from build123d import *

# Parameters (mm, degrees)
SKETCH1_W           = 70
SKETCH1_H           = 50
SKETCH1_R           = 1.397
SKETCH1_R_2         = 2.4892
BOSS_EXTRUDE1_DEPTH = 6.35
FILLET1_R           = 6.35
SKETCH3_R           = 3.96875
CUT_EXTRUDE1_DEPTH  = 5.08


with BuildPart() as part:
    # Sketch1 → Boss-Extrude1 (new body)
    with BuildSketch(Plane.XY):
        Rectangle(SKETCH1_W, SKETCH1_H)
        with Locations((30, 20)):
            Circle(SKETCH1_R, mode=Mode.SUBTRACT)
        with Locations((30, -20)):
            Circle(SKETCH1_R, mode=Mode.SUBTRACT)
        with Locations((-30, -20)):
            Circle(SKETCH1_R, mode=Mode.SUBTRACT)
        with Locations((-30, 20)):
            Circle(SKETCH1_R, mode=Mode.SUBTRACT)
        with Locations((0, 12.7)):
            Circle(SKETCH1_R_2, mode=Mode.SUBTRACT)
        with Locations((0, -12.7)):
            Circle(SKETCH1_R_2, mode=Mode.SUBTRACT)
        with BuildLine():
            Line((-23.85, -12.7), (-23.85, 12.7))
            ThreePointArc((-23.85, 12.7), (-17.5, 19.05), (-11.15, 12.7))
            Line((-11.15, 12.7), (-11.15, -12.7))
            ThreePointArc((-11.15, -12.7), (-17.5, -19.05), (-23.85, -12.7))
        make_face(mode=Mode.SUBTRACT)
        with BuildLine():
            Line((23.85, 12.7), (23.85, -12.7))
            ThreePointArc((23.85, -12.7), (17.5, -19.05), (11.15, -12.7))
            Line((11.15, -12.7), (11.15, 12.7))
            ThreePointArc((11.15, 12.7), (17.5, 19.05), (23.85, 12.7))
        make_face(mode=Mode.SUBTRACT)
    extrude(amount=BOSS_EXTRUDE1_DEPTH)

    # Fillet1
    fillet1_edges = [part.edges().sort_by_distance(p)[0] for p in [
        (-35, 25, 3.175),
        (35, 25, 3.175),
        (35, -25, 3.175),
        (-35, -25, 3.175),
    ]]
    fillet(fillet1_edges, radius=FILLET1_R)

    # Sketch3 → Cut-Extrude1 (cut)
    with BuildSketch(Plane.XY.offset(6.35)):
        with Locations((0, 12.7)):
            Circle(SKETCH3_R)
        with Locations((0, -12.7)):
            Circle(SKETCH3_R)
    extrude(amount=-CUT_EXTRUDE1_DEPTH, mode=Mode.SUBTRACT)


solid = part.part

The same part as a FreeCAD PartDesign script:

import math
import FreeCAD as App
import Part
import Sketcher
from FreeCAD import Vector
Q = App.Units.Quantity


def edges_at(feature, points):
    """Names of the edges that pass closest to the given points."""
    edges = feature.Shape.Edges
    near = lambda p: min(range(len(edges)), key=lambda i: edges[i].distToShape(Part.Vertex(*p))[0])
    return sorted({f"Edge{near(p) + 1}" for p in points})

doc = App.newDocument("Part")
body = doc.addObject("PartDesign::Body", "Body")

# Sketch on XY plane
sketch1 = body.newObject("Sketcher::SketchObject", "Sketch")
sketch1.AttachmentSupport = (doc.getObject("XY_Plane"), [""])
sketch1.MapMode = "FlatFace"
sketch1.addGeometry(Part.LineSegment(Vector(-35, 25, 0), Vector(-35, -25, 0)), False)
sketch1.addGeometry(Part.LineSegment(Vector(-35, -25, 0), Vector(35, -25, 0)), False)
sketch1.addGeometry(Part.LineSegment(Vector(35, -25, 0), Vector(35, 25, 0)), False)
sketch1.addGeometry(Part.LineSegment(Vector(35, 25, 0), Vector(-35, 25, 0)), False)
sketch1.addGeometry(Part.Circle(Vector(-30, -20, 0), Vector(0, 0, 1), 1.4), False)
sketch1.addGeometry(Part.Circle(Vector(0, -12.7, 0), Vector(0, 0, 1), 2.5), False)
sketch1.addGeometry(Part.Circle(Vector(30, -20, 0), Vector(0, 0, 1), 1.4), False)
sketch1.addGeometry(Part.ArcOfCircle(Part.Circle(Vector(-17.5, -12.7, 0), Vector(0, 0, 1), 6.3), math.radians(180), math.radians(360)), False)
sketch1.addGeometry(Part.LineSegment(Vector(-23.9, -12.7, 0), Vector(-23.9, 12.7, 0)), False)
sketch1.addGeometry(Part.ArcOfCircle(Part.Circle(Vector(-17.5, 12.7, 0), Vector(0, 0, 1), 6.3), math.radians(0), math.radians(180)), False)
sketch1.addGeometry(Part.LineSegment(Vector(-11.2, 12.7, 0), Vector(-11.2, -12.7, 0)), False)
sketch1.addGeometry(Part.Circle(Vector(-30, 20, 0), Vector(0, 0, 1), 1.4), False)
sketch1.addGeometry(Part.Circle(Vector(0, 12.7, 0), Vector(0, 0, 1), 2.5), False)
sketch1.addGeometry(Part.ArcOfCircle(Part.Circle(Vector(17.5, 12.7, 0), Vector(0, 0, 1), 6.3), math.radians(0), math.radians(180)), False)
sketch1.addGeometry(Part.LineSegment(Vector(23.9, 12.7, 0), Vector(23.9, -12.7, 0)), False)
sketch1.addGeometry(Part.ArcOfCircle(Part.Circle(Vector(17.5, -12.7, 0), Vector(0, 0, 1), 6.3), math.radians(180), math.radians(360)), False)
sketch1.addGeometry(Part.LineSegment(Vector(11.2, -12.7, 0), Vector(11.2, 12.7, 0)), False)
sketch1.addGeometry(Part.Circle(Vector(30, 20, 0), Vector(0, 0, 1), 1.4), False)
sketch1.addConstraint(Sketcher.Constraint("Coincident", 0, 2, 1, 1))
sketch1.addConstraint(Sketcher.Constraint("Coincident", 1, 2, 2, 1))
sketch1.addConstraint(Sketcher.Constraint("Coincident", 2, 2, 3, 1))
sketch1.addConstraint(Sketcher.Constraint("Coincident", 3, 2, 0, 1))
sketch1.addConstraint(Sketcher.Constraint("Tangent", 7, 1, 8, 1))
sketch1.addConstraint(Sketcher.Constraint("Tangent", 8, 2, 9, 2))
sketch1.addConstraint(Sketcher.Constraint("Tangent", 9, 1, 10, 1))
sketch1.addConstraint(Sketcher.Constraint("Tangent", 10, 2, 7, 2))
sketch1.addConstraint(Sketcher.Constraint("Tangent", 13, 1, 14, 1))
sketch1.addConstraint(Sketcher.Constraint("Tangent", 14, 2, 15, 2))
sketch1.addConstraint(Sketcher.Constraint("Tangent", 15, 1, 16, 1))
sketch1.addConstraint(Sketcher.Constraint("Tangent", 16, 2, 13, 2))
sketch1.addConstraint(Sketcher.Constraint("Vertical", 0))
sketch1.addConstraint(Sketcher.Constraint("Horizontal", 1))
sketch1.addConstraint(Sketcher.Constraint("Vertical", 2))
sketch1.addConstraint(Sketcher.Constraint("Horizontal", 3))
sketch1.addConstraint(Sketcher.Constraint("Vertical", 8))
sketch1.addConstraint(Sketcher.Constraint("Vertical", 10))
sketch1.addConstraint(Sketcher.Constraint("Vertical", 14))
sketch1.addConstraint(Sketcher.Constraint("Vertical", 16))
sketch1.addConstraint(Sketcher.Constraint("Equal", 4, 6))
sketch1.addConstraint(Sketcher.Constraint("Equal", 6, 11))
sketch1.addConstraint(Sketcher.Constraint("Equal", 5, 12))
sketch1.addConstraint(Sketcher.Constraint("Equal", 9, 13))
sketch1.addConstraint(Sketcher.Constraint("Equal", 11, 17))
sketch1.addConstraint(Sketcher.Constraint("Symmetric", 6, 3, 11, 3, -1, 1))
sketch1.addConstraint(Sketcher.Constraint("Symmetric", 5, 3, 12, 3, -1, 1))
sketch1.addConstraint(Sketcher.Constraint("Symmetric", 7, 3, 13, 3, -1, 1))
sketch1.addConstraint(Sketcher.Constraint("Symmetric", 4, 3, 17, 3, -1, 1))
sketch1.addConstraint(Sketcher.Constraint("Symmetric", 0, 2, 2, 2, -1, 1))
sketch1.addConstraint(Sketcher.Constraint("Symmetric", 4, 3, 6, 3, -2))
sketch1.addConstraint(Sketcher.Constraint("PointOnObject", 5, 3, -2))
sketch1.addConstraint(Sketcher.Constraint("Horizontal", 5, 3, 7, 3))
sketch1.addConstraint(Sketcher.Constraint("Horizontal", 9, 3, 12, 3))
sketch1.addConstraint(Sketcher.Constraint("Horizontal", 7, 3, 15, 3))
sketch1.addConstraint(Sketcher.Constraint("Diameter", 4, Q("0.11 in")))
sketch1.addConstraint(Sketcher.Constraint("DistanceY", 8, 1, 8, 2, Q("1 in")))
sketch1.addConstraint(Sketcher.Constraint("Radius", 7, Q("0.25 in")))
sketch1.addConstraint(Sketcher.Constraint("Diameter", 5, Q("0.196 in")))
sketch1.addConstraint(Sketcher.Constraint("DistanceX", 1, 1, 1, 2, Q("70 mm")))
sketch1.addConstraint(Sketcher.Constraint("DistanceY", 0, 2, 0, 1, Q("50 mm")))
sketch1.addConstraint(Sketcher.Constraint("DistanceX", 4, 3, -1, 1, Q("30 mm")))
sketch1.addConstraint(Sketcher.Constraint("DistanceY", 4, 3, -1, 1, Q("20 mm")))
sketch1.addConstraint(Sketcher.Constraint("DistanceX", 7, 3, -1, 1, Q("17.5 mm")))
pad1 = body.newObject("PartDesign::Pad", "Pad")
pad1.Profile = sketch1
pad1.Length = Q("0.25 in")
doc.recompute()

fillet = body.newObject("PartDesign::Fillet", "Fillet")
fillet.Base = (pad1, edges_at(pad1, [
    (-35, 25, 3.175),
    (35, 25, 3.175),
    (35, -25, 3.175),
    (-35, -25, 3.175),
]))
fillet.Radius = Q("0.25 in")

# Sketch on XY plane
sketch2 = body.newObject("Sketcher::SketchObject", "Sketch001")
sketch2.AttachmentSupport = (doc.getObject("XY_Plane"), [""])
sketch2.MapMode = "FlatFace"
sketch2.AttachmentOffset = App.Placement(Vector(0, 0, 0.25 * 25.4), App.Rotation())
sketch2.addGeometry(Part.Circle(Vector(0, 12.7, 0), Vector(0, 0, 1), 4), False)
sketch2.addGeometry(Part.Circle(Vector(0, -12.7, 0), Vector(0, 0, 1), 4), False)
sketch2.addConstraint(Sketcher.Constraint("Equal", 0, 1))
sketch2.addConstraint(Sketcher.Constraint("Symmetric", 0, 3, 1, 3, -1, 1))
sketch2.addConstraint(Sketcher.Constraint("PointOnObject", 0, 3, -2))
sketch2.addConstraint(Sketcher.Constraint("Diameter", 0, Q("0.3125 in")))
sketch2.addConstraint(Sketcher.Constraint("DistanceY", 1, 3, 0, 3, Q("1 in")))
pocket1 = body.newObject("PartDesign::Pocket", "Pocket")
pocket1.Profile = sketch2
pocket1.Length = Q("0.2 in")

doc.recompute()
